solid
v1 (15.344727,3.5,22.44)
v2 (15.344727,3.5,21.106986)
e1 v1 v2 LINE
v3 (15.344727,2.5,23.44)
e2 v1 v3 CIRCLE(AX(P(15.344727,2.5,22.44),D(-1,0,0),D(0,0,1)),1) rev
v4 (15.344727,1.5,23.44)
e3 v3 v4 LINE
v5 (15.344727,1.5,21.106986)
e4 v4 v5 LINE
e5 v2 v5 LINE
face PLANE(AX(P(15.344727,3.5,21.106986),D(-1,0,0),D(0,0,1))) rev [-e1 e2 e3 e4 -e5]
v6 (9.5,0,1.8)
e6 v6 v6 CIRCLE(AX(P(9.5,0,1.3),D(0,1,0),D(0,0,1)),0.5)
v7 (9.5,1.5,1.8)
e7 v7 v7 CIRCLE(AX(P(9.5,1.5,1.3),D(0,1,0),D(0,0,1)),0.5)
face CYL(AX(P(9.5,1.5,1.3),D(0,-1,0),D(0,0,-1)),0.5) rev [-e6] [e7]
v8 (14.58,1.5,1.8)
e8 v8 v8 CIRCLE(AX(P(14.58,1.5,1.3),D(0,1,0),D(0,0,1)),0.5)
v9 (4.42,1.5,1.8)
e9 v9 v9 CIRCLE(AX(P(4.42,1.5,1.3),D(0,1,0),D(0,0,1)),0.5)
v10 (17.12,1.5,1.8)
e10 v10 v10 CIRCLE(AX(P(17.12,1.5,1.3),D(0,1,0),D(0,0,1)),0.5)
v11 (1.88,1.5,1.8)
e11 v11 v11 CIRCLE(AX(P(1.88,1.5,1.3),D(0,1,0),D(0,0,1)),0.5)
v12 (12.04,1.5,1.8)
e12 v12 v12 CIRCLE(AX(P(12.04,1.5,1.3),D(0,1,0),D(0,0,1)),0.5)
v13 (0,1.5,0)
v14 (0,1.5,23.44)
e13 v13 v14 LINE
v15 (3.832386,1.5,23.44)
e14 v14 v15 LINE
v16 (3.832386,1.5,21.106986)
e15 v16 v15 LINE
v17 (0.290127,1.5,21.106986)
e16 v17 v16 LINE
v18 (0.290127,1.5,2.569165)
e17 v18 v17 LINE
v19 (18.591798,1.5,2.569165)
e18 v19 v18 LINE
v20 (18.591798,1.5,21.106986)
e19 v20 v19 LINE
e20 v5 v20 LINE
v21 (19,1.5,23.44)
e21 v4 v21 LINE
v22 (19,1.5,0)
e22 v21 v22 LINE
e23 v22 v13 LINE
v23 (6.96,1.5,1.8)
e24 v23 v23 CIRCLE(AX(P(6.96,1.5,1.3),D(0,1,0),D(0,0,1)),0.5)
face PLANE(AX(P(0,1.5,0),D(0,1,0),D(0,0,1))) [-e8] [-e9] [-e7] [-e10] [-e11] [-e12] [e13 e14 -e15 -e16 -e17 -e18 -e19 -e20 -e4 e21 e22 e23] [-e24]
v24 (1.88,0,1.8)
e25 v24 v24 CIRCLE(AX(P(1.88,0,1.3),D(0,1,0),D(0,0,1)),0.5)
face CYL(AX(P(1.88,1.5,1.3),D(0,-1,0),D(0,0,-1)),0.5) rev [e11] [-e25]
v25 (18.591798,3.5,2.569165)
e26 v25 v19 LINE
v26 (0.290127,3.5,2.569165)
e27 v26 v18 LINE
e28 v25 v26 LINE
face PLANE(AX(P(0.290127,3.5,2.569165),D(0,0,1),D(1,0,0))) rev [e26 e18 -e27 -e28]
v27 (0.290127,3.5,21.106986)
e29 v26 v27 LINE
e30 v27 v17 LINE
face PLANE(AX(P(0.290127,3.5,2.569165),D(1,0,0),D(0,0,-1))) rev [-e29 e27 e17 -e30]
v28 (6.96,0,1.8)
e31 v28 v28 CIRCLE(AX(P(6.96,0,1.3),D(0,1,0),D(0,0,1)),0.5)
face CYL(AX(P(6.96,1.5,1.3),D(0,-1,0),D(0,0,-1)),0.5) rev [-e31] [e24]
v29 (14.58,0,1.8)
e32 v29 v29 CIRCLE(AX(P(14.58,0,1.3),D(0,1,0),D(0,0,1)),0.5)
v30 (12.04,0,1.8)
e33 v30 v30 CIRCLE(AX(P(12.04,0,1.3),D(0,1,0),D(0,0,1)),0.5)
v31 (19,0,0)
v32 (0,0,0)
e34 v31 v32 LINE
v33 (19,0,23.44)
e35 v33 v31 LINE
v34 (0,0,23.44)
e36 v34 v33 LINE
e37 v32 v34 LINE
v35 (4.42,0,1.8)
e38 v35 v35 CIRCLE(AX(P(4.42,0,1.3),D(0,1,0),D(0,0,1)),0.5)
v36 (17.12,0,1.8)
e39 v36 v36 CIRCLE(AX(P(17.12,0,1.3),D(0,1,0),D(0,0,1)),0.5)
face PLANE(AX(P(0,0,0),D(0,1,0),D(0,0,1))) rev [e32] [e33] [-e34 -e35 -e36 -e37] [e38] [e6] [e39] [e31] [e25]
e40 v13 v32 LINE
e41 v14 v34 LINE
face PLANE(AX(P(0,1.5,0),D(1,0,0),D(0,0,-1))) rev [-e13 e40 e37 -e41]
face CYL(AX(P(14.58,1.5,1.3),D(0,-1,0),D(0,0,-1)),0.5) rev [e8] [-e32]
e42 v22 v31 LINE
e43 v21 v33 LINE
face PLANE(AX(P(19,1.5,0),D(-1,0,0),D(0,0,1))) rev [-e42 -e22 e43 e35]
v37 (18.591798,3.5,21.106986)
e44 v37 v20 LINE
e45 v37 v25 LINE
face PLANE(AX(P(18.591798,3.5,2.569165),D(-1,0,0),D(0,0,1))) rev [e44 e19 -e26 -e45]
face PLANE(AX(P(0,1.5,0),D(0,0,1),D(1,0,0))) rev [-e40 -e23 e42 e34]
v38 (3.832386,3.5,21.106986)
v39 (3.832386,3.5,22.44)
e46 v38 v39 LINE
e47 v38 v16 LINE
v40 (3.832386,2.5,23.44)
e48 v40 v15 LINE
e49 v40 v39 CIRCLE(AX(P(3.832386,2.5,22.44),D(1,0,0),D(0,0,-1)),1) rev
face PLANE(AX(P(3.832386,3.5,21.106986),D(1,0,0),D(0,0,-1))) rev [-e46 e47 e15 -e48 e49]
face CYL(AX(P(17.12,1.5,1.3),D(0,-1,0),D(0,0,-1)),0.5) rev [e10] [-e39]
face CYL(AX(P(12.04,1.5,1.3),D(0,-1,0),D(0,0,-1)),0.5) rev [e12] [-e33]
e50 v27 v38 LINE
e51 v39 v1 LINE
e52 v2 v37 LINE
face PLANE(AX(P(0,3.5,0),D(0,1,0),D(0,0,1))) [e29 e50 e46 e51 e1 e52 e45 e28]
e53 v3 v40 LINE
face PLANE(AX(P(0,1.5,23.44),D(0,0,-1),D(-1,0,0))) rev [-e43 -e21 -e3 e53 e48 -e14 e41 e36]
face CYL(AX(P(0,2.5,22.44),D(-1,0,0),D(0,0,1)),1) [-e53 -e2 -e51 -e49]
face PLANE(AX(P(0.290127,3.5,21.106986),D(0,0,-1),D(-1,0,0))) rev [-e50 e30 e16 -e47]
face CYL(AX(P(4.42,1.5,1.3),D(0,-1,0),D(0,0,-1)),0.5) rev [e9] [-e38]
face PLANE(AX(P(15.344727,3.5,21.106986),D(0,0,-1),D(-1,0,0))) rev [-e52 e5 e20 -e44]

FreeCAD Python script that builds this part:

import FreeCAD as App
import Part
import Sketcher

V = App.Vector
Q = App.Units.Quantity


def edges_at(feature, points):
    """Names of the edges that pass closest to the given points."""
    edges = feature.Shape.Edges
    near = lambda p: min(range(len(edges)), key=lambda i: edges[i].distToShape(Part.Vertex(*p))[0])
    return sorted({f"Edge{near(p) + 1}" for p in points})

doc = App.newDocument("Part")
body = doc.addObject("PartDesign::Body", "Body")

sketch1 = doc.addObject("Sketcher::SketchObject", "Sketch")
body.addObject(sketch1)
sketch1.AttachmentSupport = (doc.XZ_Plane, [""])
sketch1.MapMode = "FlatFace"
sketch1.addGeometry([
    Part.LineSegment(V(0, 0, 0), V(0, 23.44, 0)),
    Part.LineSegment(V(0, 23.44, 0), V(19, 23.44, 0)),
    Part.LineSegment(V(19, 23.44, 0), V(19, 0, 0)),
    Part.LineSegment(V(19, 0, 0), V(0, 0, 0)),
    Part.Circle(V(1.88, 1.3, 0), V(0, 0, 1), 0.5),
    Part.Circle(V(4.42, 1.3, 0), V(0, 0, 1), 0.5),
    Part.Circle(V(6.96, 1.3, 0), V(0, 0, 1), 0.5),
    Part.Circle(V(9.5, 1.3, 0), V(0, 0, 1), 0.5),
    Part.Circle(V(12.04, 1.3, 0), V(0, 0, 1), 0.5),
    Part.Circle(V(14.58, 1.3, 0), V(0, 0, 1), 0.5),
    Part.Circle(V(17.12, 1.3, 0), V(0, 0, 1), 0.5),
], False)
sketch1.addConstraint([
    Sketcher.Constraint("Coincident", 0, 2, 1, 1),
    Sketcher.Constraint("Coincident", 1, 2, 2, 1),
    Sketcher.Constraint("Coincident", 2, 2, 3, 1),
    Sketcher.Constraint("Coincident", 3, 2, 0, 1),
    Sketcher.Constraint("Vertical", 0),
    Sketcher.Constraint("Horizontal", 1),
    Sketcher.Constraint("Vertical", 2),
    Sketcher.Constraint("Horizontal", 3),
    Sketcher.Constraint("Coincident", 3, 2, -1, 1),
    Sketcher.Constraint("Equal", 4, 5),
    Sketcher.Constraint("Equal", 5, 6),
    Sketcher.Constraint("Equal", 6, 7),
    Sketcher.Constraint("Equal", 7, 8),
    Sketcher.Constraint("Equal", 8, 9),
    Sketcher.Constraint("Equal", 9, 10),
    Sketcher.Constraint("Horizontal", 4, 3, 5, 3),
    Sketcher.Constraint("Horizontal", 5, 3, 6, 3),
    Sketcher.Constraint("Horizontal", 6, 3, 7, 3),
    Sketcher.Constraint("Horizontal", 7, 3, 8, 3),
    Sketcher.Constraint("Horizontal", 8, 3, 9, 3),
    Sketcher.Constraint("Horizontal", 9, 3, 10, 3),
    Sketcher.Constraint("Diameter", 4, Q("1 mm")),
    Sketcher.Constraint("DistanceX", 1, 1, 1, 2, Q("19 mm")),
    Sketcher.Constraint("DistanceY", 0, 1, 0, 2, Q("23.44 mm")),
    Sketcher.Constraint("DistanceY", -1, 1, 4, 3, Q("1.3 mm")),
    Sketcher.Constraint("DistanceX", -1, 1, 7, 3, Q("9.5 mm")),
    Sketcher.Constraint("DistanceX", 4, 3, 9, 3, Q("12.7 mm")),
    Sketcher.Constraint("DistanceX", 5, 3, 10, 3, Q("12.7 mm")),
    Sketcher.Constraint("DistanceX", -1, 1, 4, 3, Q("1.88 mm")),
    Sketcher.Constraint("DistanceX", -1, 1, 5, 3, Q("4.42 mm")),
    Sketcher.Constraint("DistanceX", -1, 1, 6, 3, Q("6.96 mm")),
    Sketcher.Constraint("DistanceX", -1, 1, 8, 3, Q("12.04 mm")),
])
pad1 = doc.addObject("PartDesign::Pad", "Pad")
body.addObject(pad1)
pad1.Profile = sketch1
pad1.Length = 1.5
pad1.Reversed = True

sketch2 = doc.addObject("Sketcher::SketchObject", "Sketch001")
body.addObject(sketch2)
sketch2.AttachmentSupport = (doc.XZ_Plane, [""])
sketch2.MapMode = "FlatFace"
sketch2.AttachmentOffset = App.Placement(V(0, 0, -1.5), App.Rotation())
sketch2.addGeometry([
    Part.LineSegment(V(3.832386, 21.106986, 0), V(3.832386, 23.44, 0)),
    Part.LineSegment(V(3.832386, 23.44, 0), V(15.344727, 23.44, 0)),
    Part.LineSegment(V(15.344727, 23.44, 0), V(15.344727, 21.106986, 0)),
    Part.LineSegment(V(15.344727, 21.106986, 0), V(18.591798, 21.106986, 0)),
    Part.LineSegment(V(18.591798, 21.106986, 0), V(18.591798, 2.569165, 0)),
    Part.LineSegment(V(18.591798, 2.569165, 0), V(0.290127, 2.569165, 0)),
    Part.LineSegment(V(0.290127, 2.569165, 0), V(0.290127, 21.106986, 0)),
    Part.LineSegment(V(0.290127, 21.106986, 0), V(3.832386, 21.106986, 0)),
], False)
sketch2.addConstraint([
    Sketcher.Constraint("Coincident", 0, 2, 1, 1),
    Sketcher.Constraint("Coincident", 1, 2, 2, 1),
    Sketcher.Constraint("Coincident", 2, 2, 3, 1),
    Sketcher.Constraint("Coincident", 3, 2, 4, 1),
    Sketcher.Constraint("Coincident", 4, 2, 5, 1),
    Sketcher.Constraint("Coincident", 5, 2, 6, 1),
    Sketcher.Constraint("Coincident", 6, 2, 7, 1),
    Sketcher.Constraint("Coincident", 7, 2, 0, 1),
    Sketcher.Constraint("Vertical", 0),
    Sketcher.Constraint("Horizontal", 1),
    Sketcher.Constraint("Vertical", 2),
    Sketcher.Constraint("Horizontal", 3),
    Sketcher.Constraint("Vertical", 4),
    Sketcher.Constraint("Horizontal", 5),
    Sketcher.Constraint("Vertical", 6),
    Sketcher.Constraint("Horizontal", 7),
    Sketcher.Constraint("Horizontal", 3, 2, 6, 2),
    Sketcher.Constraint("DistanceY", -1, 1, 0, 2, Q("23.44 mm")),
    Sketcher.Constraint("DistanceX", 1, 1, 1, 2, Q("11.512341 mm")),
    Sketcher.Constraint("DistanceX", 3, 1, 3, 2, Q("3.247071 mm")),
    Sketcher.Constraint("DistanceX", 5, 2, 5, 1, Q("18.30167 mm")),
    Sketcher.Constraint("DistanceY", 4, 2, 4, 1, Q("18.537821 mm")),
    Sketcher.Constraint("DistanceY", 0, 1, 0, 2, Q("2.333014 mm")),
    Sketcher.Constraint("DistanceX", -1, 1, 0, 2, Q("3.832386 mm")),
])
pad2 = doc.addObject("PartDesign::Pad", "Pad001")
body.addObject(pad2)
pad2.Profile = sketch2
pad2.Length = 2
pad2.Reversed = True
doc.recompute()

fillet = doc.addObject("PartDesign::Fillet", "Fillet")
body.addObject(fillet)
fillet.Base = (pad2, edges_at(pad2, [(9.589, 3.5, 23.44)]))
fillet.Radius = 1

doc.recompute()
